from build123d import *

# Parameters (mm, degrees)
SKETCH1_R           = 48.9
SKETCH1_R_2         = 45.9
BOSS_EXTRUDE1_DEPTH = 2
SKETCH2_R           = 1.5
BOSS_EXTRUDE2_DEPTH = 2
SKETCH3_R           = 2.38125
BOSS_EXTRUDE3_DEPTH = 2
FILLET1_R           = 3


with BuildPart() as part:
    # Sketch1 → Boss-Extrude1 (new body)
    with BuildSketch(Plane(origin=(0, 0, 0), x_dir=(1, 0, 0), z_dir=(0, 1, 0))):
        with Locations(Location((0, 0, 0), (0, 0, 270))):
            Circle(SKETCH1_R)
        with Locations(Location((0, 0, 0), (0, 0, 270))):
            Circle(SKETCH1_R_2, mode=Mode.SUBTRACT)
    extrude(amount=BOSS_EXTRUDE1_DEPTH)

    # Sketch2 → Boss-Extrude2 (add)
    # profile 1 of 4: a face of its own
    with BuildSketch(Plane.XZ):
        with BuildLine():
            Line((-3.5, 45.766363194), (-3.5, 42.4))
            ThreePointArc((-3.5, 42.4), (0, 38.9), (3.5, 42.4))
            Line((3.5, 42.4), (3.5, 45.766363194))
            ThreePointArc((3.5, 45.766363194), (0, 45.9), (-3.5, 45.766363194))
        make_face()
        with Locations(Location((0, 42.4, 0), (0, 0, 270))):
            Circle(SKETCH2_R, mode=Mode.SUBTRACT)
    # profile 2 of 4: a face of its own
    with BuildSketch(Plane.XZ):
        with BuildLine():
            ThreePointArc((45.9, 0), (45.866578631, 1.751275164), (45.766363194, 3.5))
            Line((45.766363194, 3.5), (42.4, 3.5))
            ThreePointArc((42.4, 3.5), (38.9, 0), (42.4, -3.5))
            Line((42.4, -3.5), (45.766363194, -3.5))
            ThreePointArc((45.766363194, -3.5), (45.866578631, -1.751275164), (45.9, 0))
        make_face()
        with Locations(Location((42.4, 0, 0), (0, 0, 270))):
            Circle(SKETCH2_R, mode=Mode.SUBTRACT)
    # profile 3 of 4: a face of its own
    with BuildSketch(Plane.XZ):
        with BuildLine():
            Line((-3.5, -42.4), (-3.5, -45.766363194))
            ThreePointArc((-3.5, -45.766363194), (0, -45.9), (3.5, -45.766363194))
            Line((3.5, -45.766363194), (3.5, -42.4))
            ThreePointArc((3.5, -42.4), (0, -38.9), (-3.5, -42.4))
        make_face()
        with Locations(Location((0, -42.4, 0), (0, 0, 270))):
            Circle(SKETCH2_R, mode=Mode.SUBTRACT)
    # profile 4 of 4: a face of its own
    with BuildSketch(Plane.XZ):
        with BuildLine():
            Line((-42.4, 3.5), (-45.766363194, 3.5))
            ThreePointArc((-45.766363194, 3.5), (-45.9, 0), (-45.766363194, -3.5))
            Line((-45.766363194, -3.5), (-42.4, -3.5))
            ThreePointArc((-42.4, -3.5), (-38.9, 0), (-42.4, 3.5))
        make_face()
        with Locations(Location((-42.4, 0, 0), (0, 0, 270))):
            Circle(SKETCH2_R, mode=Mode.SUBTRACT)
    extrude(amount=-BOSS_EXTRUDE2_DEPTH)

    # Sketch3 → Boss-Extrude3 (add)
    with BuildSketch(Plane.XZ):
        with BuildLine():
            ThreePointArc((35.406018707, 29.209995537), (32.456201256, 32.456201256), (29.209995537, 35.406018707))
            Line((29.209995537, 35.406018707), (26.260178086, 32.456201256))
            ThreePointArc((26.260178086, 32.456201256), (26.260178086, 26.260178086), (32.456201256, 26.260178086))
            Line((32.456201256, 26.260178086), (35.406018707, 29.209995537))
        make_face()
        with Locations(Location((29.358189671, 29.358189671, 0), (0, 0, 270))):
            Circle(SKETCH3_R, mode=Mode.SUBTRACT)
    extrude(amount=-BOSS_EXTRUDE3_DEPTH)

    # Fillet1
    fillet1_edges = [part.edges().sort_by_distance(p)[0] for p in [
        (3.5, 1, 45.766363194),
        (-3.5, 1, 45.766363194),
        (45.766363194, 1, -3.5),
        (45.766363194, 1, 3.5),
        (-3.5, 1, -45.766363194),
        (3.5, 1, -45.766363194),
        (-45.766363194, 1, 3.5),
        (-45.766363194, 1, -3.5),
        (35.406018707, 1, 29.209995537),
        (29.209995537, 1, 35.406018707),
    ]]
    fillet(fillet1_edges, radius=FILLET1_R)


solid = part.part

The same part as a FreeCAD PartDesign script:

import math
import FreeCAD as App
import Part
import Sketcher
Q = App.Units.Quantity


def edges_at(feature, points):
    """Names of the edges that pass closest to the given points."""
    edges = feature.Shape.Edges
    near = lambda p: min(range(len(edges)), key=lambda i: edges[i].distToShape(Part.Vertex(*p))[0])
    return sorted({f"Edge{near(p) + 1}" for p in points})

doc = App.newDocument("Part")
body = doc.addObject("PartDesign::Body", "Body")

# Sketch on XZ plane
sketch1 = body.newObject("Sketcher::SketchObject", "Sketch")
sketch1.AttachmentSupport = (doc.getObject("XZ_Plane"), [""])
sketch1.MapMode = "FlatFace"
sketch1.addGeometry([
    Part.Circle(App.Vector(0, 0, 0), App.Vector(0, 0, 1), 48.9),
    Part.Circle(App.Vector(0, 0, 0), App.Vector(0, 0, 1), 45.9),
], False)
sketch1.addConstraint([
    Sketcher.Constraint("Coincident", 0, 3, -1, 1),
    Sketcher.Constraint("Coincident", 1, 3, -1, 1),
    Sketcher.Constraint("Diameter", 0, Q("97.8 mm")),
    Sketcher.Constraint("Diameter", 1, Q("91.8 mm")),
])
pad1 = body.newObject("PartDesign::Pad", "Pad")
pad1.Profile = sketch1
pad1.Length = 2
pad1.Reversed = True

# Sketch on XZ plane
sketch2 = body.newObject("Sketcher::SketchObject", "Sketch001")
sketch2.AttachmentSupport = (doc.getObject("XZ_Plane"), [""])
sketch2.MapMode = "FlatFace"
sketch2.addGeometry([
    Part.LineSegment(App.Vector(-3.5, 45.766363, 0), App.Vector(-3.5, 42.4, 0)),  # 0
    Part.ArcOfCircle(Part.Circle(App.Vector(0, 42.4, 0), App.Vector(0, 0, 1), 3.5), math.radians(180), math.radians(360)),  # 1
    Part.LineSegment(App.Vector(3.5, 42.4, 0), App.Vector(3.5, 45.766363, 0)),  # 2
    Part.ArcOfCircle(Part.Circle(App.Vector(0, 0, 0), App.Vector(0, 0, 1), 45.9), math.radians(85.626796), math.radians(94.373204)),  # 3
    Part.Circle(App.Vector(0, 42.4, 0), App.Vector(0, 0, 1), 1.5),  # 4
    Part.ArcOfCircle(Part.Circle(App.Vector(0, 0, 0), App.Vector(0, 0, 1), 45.9), math.radians(0), math.radians(4.373204)),  # 5
    Part.LineSegment(App.Vector(45.766363, 3.5, 0), App.Vector(42.4, 3.5, 0)),  # 6
    Part.ArcOfCircle(Part.Circle(App.Vector(42.4, 0, 0), App.Vector(0, 0, 1), 3.5), math.radians(90), math.radians(270)),  # 7
    Part.LineSegment(App.Vector(42.4, -3.5, 0), App.Vector(45.766363, -3.5, 0)),  # 8
    Part.ArcOfCircle(Part.Circle(App.Vector(0, 0, 0), App.Vector(0, 0, 1), 45.9), math.radians(-4.373204), math.radians(0)),  # 9
    Part.Circle(App.Vector(42.4, 0, 0), App.Vector(0, 0, 1), 1.5),  # 10
    Part.LineSegment(App.Vector(-3.5, -42.4, 0), App.Vector(-3.5, -45.766363, 0)),  # 11
    Part.ArcOfCircle(Part.Circle(App.Vector(0, 0, 0), App.Vector(0, 0, 1), 45.9), math.radians(-94.373204), math.radians(-85.626796)),  # 12
    Part.LineSegment(App.Vector(3.5, -45.766363, 0), App.Vector(3.5, -42.4, 0)),  # 13
    Part.ArcOfCircle(Part.Circle(App.Vector(0, -42.4, 0), App.Vector(0, 0, 1), 3.5), math.radians(0), math.radians(180)),  # 14
    Part.Circle(App.Vector(0, -42.4, 0), App.Vector(0, 0, 1), 1.5),  # 15
    Part.LineSegment(App.Vector(-42.4, 3.5, 0), App.Vector(-45.766363, 3.5, 0)),  # 16
    Part.ArcOfCircle(Part.Circle(App.Vector(0, 0, 0), App.Vector(0, 0, 1), 45.9), math.radians(175.626796), math.radians(184.373204)),  # 17
    Part.LineSegment(App.Vector(-45.766363, -3.5, 0), App.Vector(-42.4, -3.5, 0)),  # 18
    Part.ArcOfCircle(Part.Circle(App.Vector(-42.4, 0, 0), App.Vector(0, 0, 1), 3.5), math.radians(-90), math.radians(90)),  # 19
    Part.Circle(App.Vector(-42.4, 0, 0), App.Vector(0, 0, 1), 1.5),  # 20
], False)
sketch2.addConstraint([
    Sketcher.Constraint("Tangent", 0, 2, 1, 1),
    Sketcher.Constraint("Tangent", 1, 2, 2, 1),
    Sketcher.Constraint("Coincident", 2, 2, 3, 1),
    Sketcher.Constraint("Coincident", 3, 2, 0, 1),
    Sketcher.Constraint("Coincident", 5, 2, 6, 1),
    Sketcher.Constraint("Tangent", 6, 2, 7, 1),
    Sketcher.Constraint("Tangent", 7, 2, 8, 1),
    Sketcher.Constraint("Coincident", 8, 2, 9, 1),
    Sketcher.Constraint("Tangent", 9, 2, 5, 1),
    Sketcher.Constraint("Coincident", 11, 2, 12, 1),
    Sketcher.Constraint("Coincident", 12, 2, 13, 1),
    Sketcher.Constraint("Tangent", 13, 2, 14, 1),
    Sketcher.Constraint("Tangent", 14, 2, 11, 1),
    Sketcher.Constraint("Coincident", 16, 2, 17, 1),
    Sketcher.Constraint("Coincident", 17, 2, 18, 1),
    Sketcher.Constraint("Tangent", 18, 2, 19, 1),
    Sketcher.Constraint("Tangent", 19, 2, 16, 1),
    Sketcher.Constraint("Vertical", 0),
    Sketcher.Constraint("Vertical", 2),
    Sketcher.Constraint("Horizontal", 6),
    Sketcher.Constraint("Horizontal", 8),
    Sketcher.Constraint("Vertical", 11),
    Sketcher.Constraint("Vertical", 13),
    Sketcher.Constraint("Horizontal", 16),
    Sketcher.Constraint("Horizontal", 18),
    Sketcher.Constraint("Coincident", 3, 3, -1, 1),
    Sketcher.Constraint("Coincident", 5, 3, -1, 1),
    Sketcher.Constraint("Coincident", 12, 3, -1, 1),
    Sketcher.Constraint("Coincident", 17, 3, -1, 1),
    Sketcher.Constraint("Coincident", 4, 3, 1, 3),
    Sketcher.Constraint("Coincident", 10, 3, 7, 3),
    Sketcher.Constraint("Coincident", 15, 3, 14, 3),
    Sketcher.Constraint("Coincident", 20, 3, 19, 3),
    Sketcher.Constraint("Equal", 3, 5),
    Sketcher.Constraint("Equal", 1, 7),
    Sketcher.Constraint("Equal", 5, 9),
    Sketcher.Constraint("Equal", 4, 10),
    Sketcher.Constraint("Equal", 9, 12),
    Sketcher.Constraint("Equal", 7, 14),
    Sketcher.Constraint("Equal", 10, 15),
    Sketcher.Constraint("Equal", 12, 17),
    Sketcher.Constraint("Equal", 14, 19),
    Sketcher.Constraint("Equal", 15, 20),
    Sketcher.Constraint("Symmetric", 1, 3, 14, 3, -1, 1),
    Sketcher.Constraint("Symmetric", 7, 3, 19, 3, -1, 1),
    Sketcher.Constraint("PointOnObject", 1, 3, -2),
    Sketcher.Constraint("PointOnObject", 7, 3, -1),
    Sketcher.Constraint("PointOnObject", 9, 2, -1),
    Sketcher.Constraint("Equal", 18, 0),
    Sketcher.Constraint("Diameter", 4, Q("3 mm")),
    Sketcher.Constraint("Radius", 1, Q("3.5 mm")),
    Sketcher.Constraint("Radius", 3, Q("45.9 mm")),
    Sketcher.Constraint("DistanceY", -1, 1, 1, 3, Q("42.4 mm")),
])
pad2 = body.newObject("PartDesign::Pad", "Pad001")
pad2.Profile = sketch2
pad2.Length = 2
pad2.Reversed = True

# Sketch on XZ plane
sketch3 = body.newObject("Sketcher::SketchObject", "Sketch002")
sketch3.AttachmentSupport = (doc.getObject("XZ_Plane"), [""])
sketch3.MapMode = "FlatFace"
sketch3.addGeometry([
    Part.ArcOfCircle(Part.Circle(App.Vector(0, 0, 0), App.Vector(0, 0, 1), 45.9), math.radians(39.52266), math.radians(50.47734)),  # 0
    Part.LineSegment(App.Vector(29.209996, 35.406019, 0), App.Vector(26.260178, 32.456201, 0)),  # 1
    Part.ArcOfCircle(Part.Circle(App.Vector(29.35819, 29.35819, 0), App.Vector(0, 0, 1), 4.38125), math.radians(135), math.radians(315)),  # 2
    Part.LineSegment(App.Vector(32.456201, 26.260178, 0), App.Vector(35.406019, 29.209996, 0)),  # 3
    Part.Circle(App.Vector(29.35819, 29.35819, 0), App.Vector(0, 0, 1), 2.38125),  # 4
], False)
sketch3.addConstraint([
    Sketcher.Constraint("Coincident", 0, 2, 1, 1),
    Sketcher.Constraint("Tangent", 1, 2, 2, 1),
    Sketcher.Constraint("Tangent", 2, 2, 3, 1),
    Sketcher.Constraint("Coincident", 3, 2, 0, 1),
    Sketcher.Constraint("Coincident", 0, 3, -1, 1),
    Sketcher.Constraint("Coincident", 4, 3, 2, 3),
    Sketcher.Constraint("Parallel", 1, 3),
    Sketcher.Constraint("Equal", 1, 3),
    Sketcher.Constraint("Radius", 0, Q("45.9 mm")),
    Sketcher.Constraint("Angle", 1, Q("-135 deg")),
    Sketcher.Constraint("Diameter", 4, Q("4.7625 mm")),
    Sketcher.Constraint("Radius", 2, Q("4.38125 mm")),
    Sketcher.Constraint("DistanceY", -1, 1, 1, 2, Q("32.456201 mm")),
])
pad3 = body.newObject("PartDesign::Pad", "Pad002")
pad3.Profile = sketch3
pad3.Length = 2
pad3.Reversed = True
doc.recompute()

fillet = body.newObject("PartDesign::Fillet", "Fillet")
fillet.Base = (pad3, edges_at(pad3, [
    (3.5, 1, 45.766),
    (-3.5, 1, 45.766),
    (45.766, 1, -3.5),
    (45.766, 1, 3.5),
    (-3.5, 1, -45.766),
    (3.5, 1, -45.766),
    (-45.766, 1, 3.5),
    (-45.766, 1, -3.5),
    (35.406, 1, 29.21),
    (29.21, 1, 35.406),
]))
fillet.Radius = 3

doc.recompute()
